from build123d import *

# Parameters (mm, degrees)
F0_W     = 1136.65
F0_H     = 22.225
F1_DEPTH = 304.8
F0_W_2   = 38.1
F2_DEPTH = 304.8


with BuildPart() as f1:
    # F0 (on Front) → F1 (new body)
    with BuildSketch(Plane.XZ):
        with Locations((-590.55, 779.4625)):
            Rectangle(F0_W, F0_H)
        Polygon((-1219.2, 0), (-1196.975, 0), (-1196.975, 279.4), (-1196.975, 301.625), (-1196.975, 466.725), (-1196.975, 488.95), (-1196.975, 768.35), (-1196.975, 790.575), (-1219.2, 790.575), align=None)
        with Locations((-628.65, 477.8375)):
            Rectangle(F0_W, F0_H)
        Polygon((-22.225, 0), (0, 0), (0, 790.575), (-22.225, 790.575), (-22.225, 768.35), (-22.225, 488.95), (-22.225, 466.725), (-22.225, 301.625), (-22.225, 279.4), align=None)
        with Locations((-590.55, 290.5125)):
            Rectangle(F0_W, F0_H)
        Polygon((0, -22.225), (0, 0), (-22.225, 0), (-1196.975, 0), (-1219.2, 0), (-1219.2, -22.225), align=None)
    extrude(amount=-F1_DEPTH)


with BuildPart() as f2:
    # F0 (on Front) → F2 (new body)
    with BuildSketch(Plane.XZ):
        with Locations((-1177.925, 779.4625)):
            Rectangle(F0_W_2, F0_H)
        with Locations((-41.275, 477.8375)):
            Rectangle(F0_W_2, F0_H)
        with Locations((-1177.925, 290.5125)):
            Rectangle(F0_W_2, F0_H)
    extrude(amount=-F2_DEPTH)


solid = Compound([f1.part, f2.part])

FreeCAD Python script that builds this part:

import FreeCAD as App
import Part
import Sketcher
from FreeCAD import Vector
Q = App.Units.Quantity

doc = App.newDocument("Part")
params = doc.addObject("Spreadsheet::Sheet", "Params")
for row, (alias, value) in enumerate([
    ("sketch1_width", "48 in"),
    ("sketch1_height", "11 in"),
    ("sketch1_height2", "32 in"),
    ("sketch1_width2", "44.75 in"),
    ("sketch1_width3", "46.25 in"),
    ("pad1_length", "12 in"),
    ("sketch2_width", "1.5 in"),
    ("sketch2_height", "0.875 in"),
    ("pad2_length", "12 in"),
], start=1):
    params.set(f"A{row}", alias)
    params.set(f"B{row}", "=" + value)
    params.setAlias(f"B{row}", alias)

body = doc.addObject("PartDesign::Body", "Body")

# Sketch on XZ plane
sketch1 = body.newObject("Sketcher::SketchObject", "Sketch")
sketch1.AttachmentSupport = (doc.getObject("XZ_Plane"), [""])
sketch1.MapMode = "FlatFace"
sketch1.addGeometry([
    Part.LineSegment(Vector(-1159, 791, 0), Vector(-1159, 768, 0)),  # 0
    Part.LineSegment(Vector(-1159, 768, 0), Vector(-22, 768, 0)),  # 1
    Part.LineSegment(Vector(-22, 768, 0), Vector(-22, 302, 0)),  # 2
    Part.LineSegment(Vector(-22, 302, 0), Vector(-1159, 302, 0)),  # 3
    Part.LineSegment(Vector(-1159, 302, 0), Vector(-1159, 279, 0)),  # 4
    Part.LineSegment(Vector(-1159, 279, 0), Vector(-22, 279, 0)),  # 5
    Part.LineSegment(Vector(-22, 279, 0), Vector(-22, 0, 0)),  # 6
    Part.LineSegment(Vector(-22, 0, 0), Vector(-1197, 0, 0)),  # 7
    Part.LineSegment(Vector(-1197, 0, 0), Vector(-1197, 467, 0)),  # 8
    Part.LineSegment(Vector(-1197, 467, 0), Vector(-60, 467, 0)),  # 9
    Part.LineSegment(Vector(-60, 467, 0), Vector(-60, 489, 0)),  # 10
    Part.LineSegment(Vector(-60, 489, 0), Vector(-1197, 489, 0)),  # 11
    Part.LineSegment(Vector(-1197, 489, 0), Vector(-1197, 791, 0)),  # 12
    Part.LineSegment(Vector(-1197, 791, 0), Vector(-1219, 791, 0)),  # 13
    Part.LineSegment(Vector(-1219, 791, 0), Vector(-1219, -22, 0)),  # 14
    Part.LineSegment(Vector(-1219, -22, 0), Vector(0, -22, 0)),  # 15
    Part.LineSegment(Vector(0, -22, 0), Vector(0, 791, 0)),  # 16
    Part.LineSegment(Vector(0, 791, 0), Vector(-1159, 791, 0)),  # 17
], False)
sketch1.addConstraint([
    Sketcher.Constraint("Coincident", 0, 2, 1, 1),
    Sketcher.Constraint("Coincident", 1, 2, 2, 1),
    Sketcher.Constraint("Coincident", 2, 2, 3, 1),
    Sketcher.Constraint("Coincident", 3, 2, 4, 1),
    Sketcher.Constraint("Coincident", 4, 2, 5, 1),
    Sketcher.Constraint("Coincident", 5, 2, 6, 1),
    Sketcher.Constraint("Coincident", 6, 2, 7, 1),
    Sketcher.Constraint("Coincident", 7, 2, 8, 1),
    Sketcher.Constraint("Coincident", 8, 2, 9, 1),
    Sketcher.Constraint("Coincident", 9, 2, 10, 1),
    Sketcher.Constraint("Coincident", 10, 2, 11, 1),
    Sketcher.Constraint("Coincident", 11, 2, 12, 1),
    Sketcher.Constraint("Coincident", 12, 2, 13, 1),
    Sketcher.Constraint("Coincident", 13, 2, 14, 1),
    Sketcher.Constraint("Coincident", 14, 2, 15, 1),
    Sketcher.Constraint("Coincident", 15, 2, 16, 1),
    Sketcher.Constraint("Coincident", 16, 2, 17, 1),
    Sketcher.Constraint("Coincident", 17, 2, 0, 1),
    Sketcher.Constraint("Vertical", 0),
    Sketcher.Constraint("Horizontal", 1),
    Sketcher.Constraint("Vertical", 2),
    Sketcher.Constraint("Horizontal", 3),
    Sketcher.Constraint("Vertical", 4),
    Sketcher.Constraint("Horizontal", 5),
    Sketcher.Constraint("Vertical", 6),
    Sketcher.Constraint("Horizontal", 7),
    Sketcher.Constraint("Vertical", 8),
    Sketcher.Constraint("Horizontal", 9),
    Sketcher.Constraint("Vertical", 10),
    Sketcher.Constraint("Horizontal", 11),
    Sketcher.Constraint("Vertical", 12),
    Sketcher.Constraint("Horizontal", 13),
    Sketcher.Constraint("Vertical", 14),
    Sketcher.Constraint("Horizontal", 15),
    Sketcher.Constraint("Vertical", 16),
    Sketcher.Constraint("Horizontal", 17),
    Sketcher.Constraint("PointOnObject", 6, 2, -1),
    Sketcher.Constraint("PointOnObject", 15, 2, -2),
    Sketcher.Constraint("Horizontal", 13, 2, 16, 2),
    Sketcher.Constraint("Vertical", 0, 2, 3, 2),
    Sketcher.Constraint("Vertical", 2, 2, 5, 2),
    Sketcher.Constraint("Vertical", 8, 2, 11, 2),
    Sketcher.Constraint("Equal", 5, 9),
    Sketcher.Constraint("Equal", 13, 0),
    Sketcher.Constraint("Equal", 0, 4),
    Sketcher.Constraint("Equal", 2, 8),
    Sketcher.Constraint("Equal", 4, 10),
    Sketcher.Constraint("DistanceX", 15, 1, 15, 2, Q("48 in")),
    Sketcher.Constraint("DistanceY", 6, 2, 6, 1, Q("11 in")),
    Sketcher.Constraint("DistanceY", 14, 2, 14, 1, Q("32 in")),
    Sketcher.Constraint("DistanceX", 1, 1, 1, 2, Q("44.75 in")),
    Sketcher.Constraint("DistanceX", 7, 2, 7, 1, Q("46.25 in")),
    Sketcher.Constraint("DistanceY", 3, 2, 8, 2, Q("6.5 in")),
    Sketcher.Constraint("DistanceX", 13, 2, 13, 1, Q("0.875 in")),
])
sketch1.setExpression("Constraints[47]", "Params.sketch1_width")
sketch1.setExpression("Constraints[48]", "Params.sketch1_height")
sketch1.setExpression("Constraints[49]", "Params.sketch1_height2")
sketch1.setExpression("Constraints[50]", "Params.sketch1_width2")
sketch1.setExpression("Constraints[51]", "Params.sketch1_width3")
pad1 = body.newObject("PartDesign::Pad", "Pad")
pad1.Profile = sketch1
pad1.setExpression("Length", "Params.pad1_length")
pad1.Reversed = True
body2 = doc.addObject("PartDesign::Body", "Body001")
body2.AllowCompound = True

# Sketch on XZ plane
sketch2 = body2.newObject("Sketcher::SketchObject", "Sketch001")
sketch2.AttachmentSupport = (doc.getObject("XZ_Plane001"), [""])
sketch2.MapMode = "FlatFace"
sketch2.addGeometry([
    Part.LineSegment(Vector(-1197, 791, 0), Vector(-1197, 768, 0)),  # 0
    Part.LineSegment(Vector(-1197, 768, 0), Vector(-1159, 768, 0)),  # 1
    Part.LineSegment(Vector(-1159, 768, 0), Vector(-1159, 791, 0)),  # 2
    Part.LineSegment(Vector(-1159, 791, 0), Vector(-1197, 791, 0)),  # 3
    Part.LineSegment(Vector(-60, 489, 0), Vector(-60, 467, 0)),  # 4
    Part.LineSegment(Vector(-60, 467, 0), Vector(-22, 467, 0)),  # 5
    Part.LineSegment(Vector(-22, 467, 0), Vector(-22, 489, 0)),  # 6
    Part.LineSegment(Vector(-22, 489, 0), Vector(-60, 489, 0)),  # 7
    Part.LineSegment(Vector(-1197, 302, 0), Vector(-1197, 279, 0)),  # 8
    Part.LineSegment(Vector(-1197, 279, 0), Vector(-1159, 279, 0)),  # 9
    Part.LineSegment(Vector(-1159, 279, 0), Vector(-1159, 302, 0)),  # 10
    Part.LineSegment(Vector(-1159, 302, 0), Vector(-1197, 302, 0)),  # 11
], False)
sketch2.addConstraint([
    Sketcher.Constraint("Coincident", 0, 2, 1, 1),
    Sketcher.Constraint("Coincident", 1, 2, 2, 1),
    Sketcher.Constraint("Coincident", 2, 2, 3, 1),
    Sketcher.Constraint("Coincident", 3, 2, 0, 1),
    Sketcher.Constraint("Coincident", 4, 2, 5, 1),
    Sketcher.Constraint("Coincident", 5, 2, 6, 1),
    Sketcher.Constraint("Coincident", 6, 2, 7, 1),
    Sketcher.Constraint("Coincident", 7, 2, 4, 1),
    Sketcher.Constraint("Coincident", 8, 2, 9, 1),
    Sketcher.Constraint("Coincident", 9, 2, 10, 1),
    Sketcher.Constraint("Coincident", 10, 2, 11, 1),
    Sketcher.Constraint("Coincident", 11, 2, 8, 1),
    Sketcher.Constraint("Vertical", 0),
    Sketcher.Constraint("Horizontal", 1),
    Sketcher.Constraint("Vertical", 2),
    Sketcher.Constraint("Horizontal", 3),
    Sketcher.Constraint("Vertical", 4),
    Sketcher.Constraint("Horizontal", 5),
    Sketcher.Constraint("Vertical", 6),
    Sketcher.Constraint("Horizontal", 7),
    Sketcher.Constraint("Vertical", 8),
    Sketcher.Constraint("Horizontal", 9),
    Sketcher.Constraint("Vertical", 10),
    Sketcher.Constraint("Horizontal", 11),
    Sketcher.Constraint("Vertical", 3, 2, 8, 2),
    Sketcher.Constraint("Vertical", 2, 2, 9, 2),
    Sketcher.Constraint("Equal", 3, 5),
    Sketcher.Constraint("Equal", 2, 4),
    Sketcher.Constraint("Equal", 6, 8),
    Sketcher.Constraint("DistanceX", 1, 1, 1, 2, Q("1.5 in")),
    Sketcher.Constraint("DistanceY", -1, 1, 8, 2, Q("11 in")),
    Sketcher.Constraint("DistanceY", 6, 2, 1, 2, Q("11 in")),
    Sketcher.Constraint("DistanceY", 0, 2, 0, 1, Q("0.875 in")),
    Sketcher.Constraint("DistanceY", -1, 1, 0, 2, Q("30.25 in")),
    Sketcher.Constraint("DistanceX", 1, 2, 4, 2, Q("43.25 in")),
    Sketcher.Constraint("DistanceX", 0, 2, -1, 1, Q("47.125 in")),
])
sketch2.setExpression("Constraints[29]", "Params.sketch2_width")
sketch2.setExpression("Constraints[32]", "Params.sketch2_height")
pad2 = body2.newObject("PartDesign::Pad", "Pad001")
pad2.Profile = sketch2
pad2.setExpression("Length", "Params.pad2_length")
pad2.Reversed = True

doc.recompute()
